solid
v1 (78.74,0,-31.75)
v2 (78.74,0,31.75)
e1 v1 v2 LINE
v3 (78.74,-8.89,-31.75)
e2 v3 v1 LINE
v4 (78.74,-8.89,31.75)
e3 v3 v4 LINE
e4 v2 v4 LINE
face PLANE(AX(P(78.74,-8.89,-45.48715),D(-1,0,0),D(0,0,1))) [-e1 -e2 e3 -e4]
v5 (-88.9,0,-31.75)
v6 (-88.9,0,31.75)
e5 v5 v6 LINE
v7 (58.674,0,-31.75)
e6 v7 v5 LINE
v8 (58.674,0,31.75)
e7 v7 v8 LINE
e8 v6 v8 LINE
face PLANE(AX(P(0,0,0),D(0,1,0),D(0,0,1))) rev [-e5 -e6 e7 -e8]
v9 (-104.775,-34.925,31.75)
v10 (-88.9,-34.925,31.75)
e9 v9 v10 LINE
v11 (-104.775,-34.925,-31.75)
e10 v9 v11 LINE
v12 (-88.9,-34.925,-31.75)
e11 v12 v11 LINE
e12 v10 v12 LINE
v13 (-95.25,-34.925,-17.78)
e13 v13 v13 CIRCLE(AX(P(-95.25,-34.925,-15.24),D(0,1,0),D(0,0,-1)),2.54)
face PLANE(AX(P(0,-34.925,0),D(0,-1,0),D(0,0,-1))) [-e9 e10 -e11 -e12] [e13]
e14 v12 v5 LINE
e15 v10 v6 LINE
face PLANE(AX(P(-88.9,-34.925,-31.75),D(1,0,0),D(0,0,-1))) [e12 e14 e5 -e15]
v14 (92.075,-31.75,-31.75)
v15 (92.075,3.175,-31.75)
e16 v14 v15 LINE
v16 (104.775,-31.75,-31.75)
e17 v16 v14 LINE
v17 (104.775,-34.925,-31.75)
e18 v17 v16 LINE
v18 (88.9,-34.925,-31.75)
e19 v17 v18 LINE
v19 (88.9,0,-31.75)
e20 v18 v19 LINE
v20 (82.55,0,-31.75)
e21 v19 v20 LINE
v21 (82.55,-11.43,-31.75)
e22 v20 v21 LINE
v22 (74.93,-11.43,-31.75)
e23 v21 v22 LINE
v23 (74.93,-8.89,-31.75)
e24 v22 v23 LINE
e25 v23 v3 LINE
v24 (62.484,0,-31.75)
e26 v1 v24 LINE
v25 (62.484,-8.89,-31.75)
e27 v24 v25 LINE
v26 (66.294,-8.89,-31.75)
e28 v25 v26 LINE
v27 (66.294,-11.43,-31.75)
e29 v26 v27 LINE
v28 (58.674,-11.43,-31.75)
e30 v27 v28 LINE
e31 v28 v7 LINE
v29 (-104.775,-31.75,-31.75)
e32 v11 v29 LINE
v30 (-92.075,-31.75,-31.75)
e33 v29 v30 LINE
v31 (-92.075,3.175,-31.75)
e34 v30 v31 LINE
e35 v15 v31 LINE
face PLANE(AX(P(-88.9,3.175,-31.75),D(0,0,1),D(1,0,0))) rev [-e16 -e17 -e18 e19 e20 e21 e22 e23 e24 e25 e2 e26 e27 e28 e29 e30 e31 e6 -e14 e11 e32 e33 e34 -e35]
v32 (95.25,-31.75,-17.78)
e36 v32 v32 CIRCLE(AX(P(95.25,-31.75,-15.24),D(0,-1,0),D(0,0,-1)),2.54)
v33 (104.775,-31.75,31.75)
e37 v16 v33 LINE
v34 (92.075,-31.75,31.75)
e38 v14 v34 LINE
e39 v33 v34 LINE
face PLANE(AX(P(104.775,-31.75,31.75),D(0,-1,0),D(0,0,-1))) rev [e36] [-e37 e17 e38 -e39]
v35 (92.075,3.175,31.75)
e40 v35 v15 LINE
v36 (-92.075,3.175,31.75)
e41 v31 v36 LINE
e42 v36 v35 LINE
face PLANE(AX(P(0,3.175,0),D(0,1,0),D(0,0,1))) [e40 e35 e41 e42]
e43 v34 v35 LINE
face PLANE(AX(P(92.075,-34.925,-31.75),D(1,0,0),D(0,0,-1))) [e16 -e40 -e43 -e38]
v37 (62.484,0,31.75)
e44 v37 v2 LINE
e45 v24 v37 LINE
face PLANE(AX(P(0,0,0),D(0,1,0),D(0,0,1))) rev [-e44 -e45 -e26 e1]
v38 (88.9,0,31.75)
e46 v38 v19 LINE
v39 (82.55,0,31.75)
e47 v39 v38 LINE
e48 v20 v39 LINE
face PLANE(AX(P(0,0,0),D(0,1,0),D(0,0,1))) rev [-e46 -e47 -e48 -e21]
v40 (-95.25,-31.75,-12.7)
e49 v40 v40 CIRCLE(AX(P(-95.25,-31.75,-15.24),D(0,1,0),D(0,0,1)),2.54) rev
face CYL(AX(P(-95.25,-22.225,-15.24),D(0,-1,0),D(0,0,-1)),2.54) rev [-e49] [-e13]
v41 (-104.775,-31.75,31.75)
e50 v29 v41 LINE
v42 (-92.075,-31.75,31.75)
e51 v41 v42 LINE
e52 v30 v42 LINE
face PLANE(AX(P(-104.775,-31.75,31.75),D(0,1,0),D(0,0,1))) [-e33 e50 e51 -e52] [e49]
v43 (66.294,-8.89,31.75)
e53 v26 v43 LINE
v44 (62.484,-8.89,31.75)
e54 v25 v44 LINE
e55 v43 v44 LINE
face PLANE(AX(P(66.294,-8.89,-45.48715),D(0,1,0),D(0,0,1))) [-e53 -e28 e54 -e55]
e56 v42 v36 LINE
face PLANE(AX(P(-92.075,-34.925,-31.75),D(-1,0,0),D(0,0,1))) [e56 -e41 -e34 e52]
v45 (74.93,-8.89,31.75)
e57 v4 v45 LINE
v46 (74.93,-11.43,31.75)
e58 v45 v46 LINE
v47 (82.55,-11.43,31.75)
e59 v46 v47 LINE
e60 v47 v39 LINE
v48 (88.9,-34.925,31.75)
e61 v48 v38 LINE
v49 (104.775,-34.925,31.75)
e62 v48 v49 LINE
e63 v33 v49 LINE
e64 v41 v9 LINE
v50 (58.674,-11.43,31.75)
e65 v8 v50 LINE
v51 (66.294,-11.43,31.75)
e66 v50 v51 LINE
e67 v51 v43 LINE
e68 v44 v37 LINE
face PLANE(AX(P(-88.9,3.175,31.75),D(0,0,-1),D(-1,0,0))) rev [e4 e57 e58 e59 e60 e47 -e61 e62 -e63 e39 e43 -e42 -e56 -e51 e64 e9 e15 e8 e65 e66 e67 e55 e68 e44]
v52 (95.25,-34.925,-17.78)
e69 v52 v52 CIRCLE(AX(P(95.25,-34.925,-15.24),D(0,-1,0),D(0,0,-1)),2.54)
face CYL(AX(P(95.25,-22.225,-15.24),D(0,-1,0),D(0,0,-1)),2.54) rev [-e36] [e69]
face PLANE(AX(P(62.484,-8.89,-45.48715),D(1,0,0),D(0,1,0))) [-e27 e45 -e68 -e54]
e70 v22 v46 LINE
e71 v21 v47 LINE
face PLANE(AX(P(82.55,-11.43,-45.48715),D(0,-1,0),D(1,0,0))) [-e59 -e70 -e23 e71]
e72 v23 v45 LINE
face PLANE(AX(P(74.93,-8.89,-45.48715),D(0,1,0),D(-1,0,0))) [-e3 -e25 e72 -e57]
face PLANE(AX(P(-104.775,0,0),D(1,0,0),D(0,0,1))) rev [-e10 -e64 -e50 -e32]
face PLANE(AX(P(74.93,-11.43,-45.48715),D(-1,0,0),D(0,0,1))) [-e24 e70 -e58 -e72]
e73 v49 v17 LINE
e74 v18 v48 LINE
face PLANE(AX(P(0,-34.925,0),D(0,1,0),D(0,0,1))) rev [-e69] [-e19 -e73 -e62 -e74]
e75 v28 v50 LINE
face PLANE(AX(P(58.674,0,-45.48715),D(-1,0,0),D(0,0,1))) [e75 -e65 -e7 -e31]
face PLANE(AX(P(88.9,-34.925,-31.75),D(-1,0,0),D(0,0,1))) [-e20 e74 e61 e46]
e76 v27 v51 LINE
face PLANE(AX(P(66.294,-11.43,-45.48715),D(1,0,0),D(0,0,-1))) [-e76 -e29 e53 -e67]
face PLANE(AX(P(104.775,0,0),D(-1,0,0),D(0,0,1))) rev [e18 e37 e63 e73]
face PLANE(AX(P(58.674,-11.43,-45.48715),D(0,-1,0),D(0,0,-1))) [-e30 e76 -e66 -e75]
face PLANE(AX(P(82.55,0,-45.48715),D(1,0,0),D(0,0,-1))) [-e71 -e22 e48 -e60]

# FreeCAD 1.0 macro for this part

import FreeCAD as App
import Part
import Sketcher

V = App.Vector
Q = App.Units.Quantity

doc = App.newDocument("Part")
body = doc.addObject("PartDesign::Body", "Body")

# Sketch on XZ plane
sketch1 = body.newObject("Sketcher::SketchObject", "Sketch")
sketch1.AttachmentSupport = (doc.getObject("XZ_Plane"), [""])
sketch1.MapMode = "FlatFace"
sketch1.addGeometry([
    Part.LineSegment(V(-89, -32, 0), V(-89, 32, 0)),
    Part.LineSegment(V(-89, 32, 0), V(89, 32, 0)),
    Part.LineSegment(V(89, 32, 0), V(89, -32, 0)),
    Part.LineSegment(V(89, -32, 0), V(-89, -32, 0)),
], False)
sketch1.addConstraint([
    Sketcher.Constraint("Coincident", 0, 2, 1, 1),
    Sketcher.Constraint("Coincident", 1, 2, 2, 1),
    Sketcher.Constraint("Coincident", 2, 2, 3, 1),
    Sketcher.Constraint("Coincident", 3, 2, 0, 1),
    Sketcher.Constraint("Vertical", 0),
    Sketcher.Constraint("Horizontal", 1),
    Sketcher.Constraint("Vertical", 2),
    Sketcher.Constraint("Horizontal", 3),
    Sketcher.Constraint("Symmetric", 0, 2, 2, 2, -1, 1),
    Sketcher.Constraint("DistanceX", 1, 1, 1, 2, Q("7 in")),
    Sketcher.Constraint("DistanceY", 0, 1, 0, 2, Q("2.5 in")),
])
pad1 = body.newObject("PartDesign::Pad", "Pad")
pad1.Profile = sketch1
pad1.Length = Q("0.125 in")
pad1.Reversed = True

# Sketch on XZ plane
sketch2 = body.newObject("Sketcher::SketchObject", "Sketch001")
sketch2.AttachmentSupport = (doc.getObject("XZ_Plane"), [""])
sketch2.MapMode = "FlatFace"
sketch2.AttachmentOffset = App.Placement(V(0, 0, -0.125 * 25.4), App.Rotation())
sketch2.addGeometry([
    Part.LineSegment(V(-92.1, -31.8, 0), V(-92.1, 31.8, 0)),  # 0
    Part.LineSegment(V(-92.1, 31.8, 0), V(-88.9, 31.8, 0)),  # 1
    Part.LineSegment(V(-88.9, 31.8, 0), V(-88.9, -31.8, 0)),  # 2
    Part.LineSegment(V(-88.9, -31.8, 0), V(-92.1, -31.8, 0)),  # 3
    Part.LineSegment(V(88.9, -31.8, 0), V(88.9, 31.8, 0)),  # 4
    Part.LineSegment(V(88.9, 31.8, 0), V(92.1, 31.8, 0)),  # 5
    Part.LineSegment(V(92.1, 31.8, 0), V(92.1, -31.8, 0)),  # 6
    Part.LineSegment(V(92.1, -31.8, 0), V(88.9, -31.8, 0)),  # 7
], False)
sketch2.addConstraint([
    Sketcher.Constraint("Coincident", 0, 2, 1, 1),
    Sketcher.Constraint("Coincident", 1, 2, 2, 1),
    Sketcher.Constraint("Coincident", 2, 2, 3, 1),
    Sketcher.Constraint("Coincident", 3, 2, 0, 1),
    Sketcher.Constraint("Coincident", 4, 2, 5, 1),
    Sketcher.Constraint("Coincident", 5, 2, 6, 1),
    Sketcher.Constraint("Coincident", 6, 2, 7, 1),
    Sketcher.Constraint("Coincident", 7, 2, 4, 1),
    Sketcher.Constraint("Vertical", 0),
    Sketcher.Constraint("Horizontal", 1),
    Sketcher.Constraint("Vertical", 2),
    Sketcher.Constraint("Horizontal", 3),
    Sketcher.Constraint("Vertical", 4),
    Sketcher.Constraint("Horizontal", 5),
    Sketcher.Constraint("Vertical", 6),
    Sketcher.Constraint("Horizontal", 7),
    Sketcher.Constraint("Symmetric", 2, 2, 4, 2, -1, 1),
    Sketcher.Constraint("Symmetric", 0, 2, 6, 2, -1, 1),
    Sketcher.Constraint("Horizontal", 1, 2, 4, 2),
    Sketcher.Constraint("DistanceY", 0, 1, 0, 2, Q("2.5 in")),
    Sketcher.Constraint("DistanceX", 1, 2, 4, 2, Q("7 in")),
    Sketcher.Constraint("DistanceX", 1, 1, 1, 2, Q("0.125 in")),
])
pad2 = body.newObject("PartDesign::Pad", "Pad001")
pad2.Profile = sketch2
pad2.Length = Q("1.5 in")

# Sketch on YZ plane
sketch3 = body.newObject("Sketcher::SketchObject", "Sketch002")
sketch3.AttachmentSupport = (doc.getObject("YZ_Plane"), [""])
sketch3.MapMode = "FlatFace"
sketch3.AttachmentOffset = App.Placement(V(0, 0, 3.625 * 25.4), App.Rotation())
sketch3.addGeometry([
    Part.LineSegment(V(-31.8, 31.8, 0), V(-34.9, 31.8, 0)),
    Part.LineSegment(V(-34.9, 31.8, 0), V(-34.9, -31.8, 0)),
    Part.LineSegment(V(-34.9, -31.8, 0), V(-31.8, -31.8, 0)),
    Part.LineSegment(V(-31.8, -31.8, 0), V(-31.8, 31.8, 0)),
], False)
sketch3.addConstraint([
    Sketcher.Constraint("Coincident", 0, 2, 1, 1),
    Sketcher.Constraint("Coincident", 1, 2, 2, 1),
    Sketcher.Constraint("Coincident", 2, 2, 3, 1),
    Sketcher.Constraint("Coincident", 3, 2, 0, 1),
    Sketcher.Constraint("Horizontal", 0),
    Sketcher.Constraint("Vertical", 1),
    Sketcher.Constraint("Horizontal", 2),
    Sketcher.Constraint("Vertical", 3),
    Sketcher.Constraint("DistanceY", 1, 2, 1, 1, Q("2.5 in")),
    Sketcher.Constraint("DistanceX", 0, 2, 0, 1, Q("0.125 in")),
    Sketcher.Constraint("DistanceY", -1, 1, 0, 2, Q("1.25 in")),
    Sketcher.Constraint("DistanceX", 2, 2, -1, 1, Q("1.25 in")),
])
pad3 = body.newObject("PartDesign::Pad", "Pad002")
pad3.Profile = sketch3
pad3.Length = Q("0.5 in")

# Sketch on XZ plane
sketch4 = body.newObject("Sketcher::SketchObject", "Sketch003")
sketch4.AttachmentSupport = (doc.getObject("XZ_Plane"), [""])
sketch4.MapMode = "FlatFace"
sketch4.AttachmentOffset = App.Placement(V(0, 0, 1.375 * 25.4), App.Rotation())
sketch4.addGeometry(Part.Circle(V(95.2, -15.2, 0), V(0, 0, 1), 2.5), False)
sketch4.addConstraint([
    Sketcher.Constraint("Diameter", 0, Q("0.2 in")),
    Sketcher.Constraint("DistanceY", 0, 3, -1, 1, Q("0.6 in")),
    Sketcher.Constraint("DistanceX", -1, 1, 0, 3, Q("3.75 in")),
])
pocket1 = body.newObject("PartDesign::Pocket", "Pocket")
pocket1.Profile = sketch4
pocket1.Length = Q("0.5 in")
doc.recompute()

mirrored = body.newObject("PartDesign::Mirrored", "Mirrored")
mirrored.Originals = [pad3, pocket1]
mirrored.MirrorPlane = (doc.getObject("YZ_Plane"), [""])
body.Tip = mirrored

# Sketch on XY plane
sketch5 = body.newObject("Sketcher::SketchObject", "Sketch004")
sketch5.AttachmentSupport = (doc.getObject("XY_Plane"), [""])
sketch5.MapMode = "FlatFace"
sketch5.AttachmentOffset = App.Placement(V(0, 0, 1.25 * 25.4), App.Rotation())
sketch5.addGeometry([
    Part.LineSegment(V(58.7, 0, 0), V(58.7, -11.4, 0)),  # 0
    Part.LineSegment(V(58.7, -11.4, 0), V(66.3, -11.4, 0)),  # 1
    Part.LineSegment(V(66.3, -11.4, 0), V(66.3, -8.9, 0)),  # 2
    Part.LineSegment(V(66.3, -8.9, 0), V(62.5, -8.9, 0)),  # 3
    Part.LineSegment(V(62.5, -8.9, 0), V(62.5, 0, 0)),  # 4
    Part.LineSegment(V(62.5, 0, 0), V(58.7, 0, 0)),  # 5
    Part.LineSegment(V(82.5, -11.4, 0), V(82.5, 0, 0)),  # 6
    Part.LineSegment(V(82.5, 0, 0), V(78.7, 0, 0)),  # 7
    Part.LineSegment(V(78.7, 0, 0), V(78.7, -8.9, 0)),  # 8
    Part.LineSegment(V(78.7, -8.9, 0), V(74.9, -8.9, 0)),  # 9
    Part.LineSegment(V(74.9, -8.9, 0), V(74.9, -11.4, 0)),  # 10
    Part.LineSegment(V(74.9, -11.4, 0), V(82.5, -11.4, 0)),  # 11
], False)
sketch5.addConstraint([
    Sketcher.Constraint("Coincident", 0, 2, 1, 1),
    Sketcher.Constraint("Coincident", 1, 2, 2, 1),
    Sketcher.Constraint("Coincident", 2, 2, 3, 1),
    Sketcher.Constraint("Coincident", 3, 2, 4, 1),
    Sketcher.Constraint("Coincident", 4, 2, 5, 1),
    Sketcher.Constraint("Coincident", 5, 2, 0, 1),
    Sketcher.Constraint("Coincident", 6, 2, 7, 1),
    Sketcher.Constraint("Coincident", 7, 2, 8, 1),
    Sketcher.Constraint("Coincident", 8, 2, 9, 1),
    Sketcher.Constraint("Coincident", 9, 2, 10, 1),
    Sketcher.Constraint("Coincident", 10, 2, 11, 1),
    Sketcher.Constraint("Coincident", 11, 2, 6, 1),
    Sketcher.Constraint("Vertical", 0),
    Sketcher.Constraint("Horizontal", 1),
    Sketcher.Constraint("Vertical", 2),
    Sketcher.Constraint("Horizontal", 3),
    Sketcher.Constraint("Vertical", 4),
    Sketcher.Constraint("Horizontal", 5),
    Sketcher.Constraint("Vertical", 6),
    Sketcher.Constraint("Horizontal", 7),
    Sketcher.Constraint("Vertical", 8),
    Sketcher.Constraint("Horizontal", 9),
    Sketcher.Constraint("Vertical", 10),
    Sketcher.Constraint("Horizontal", 11),
    Sketcher.Constraint("PointOnObject", 4, 2, -1),
    Sketcher.Constraint("PointOnObject", 6, 2, -1),
    Sketcher.Constraint("Horizontal", 3, 2, 8, 2),
    Sketcher.Constraint("Horizontal", 1, 2, 10, 2),
    Sketcher.Constraint("Equal", 3, 5),
    Sketcher.Constraint("Equal", 5, 7),
    Sketcher.Constraint("Equal", 7, 9),
    Sketcher.Constraint("DistanceX", 1, 1, 1, 2, Q("0.3 in")),
    Sketcher.Constraint("DistanceY", 2, 1, 2, 2, Q("0.1 in")),
    Sketcher.Constraint("DistanceY", 0, 2, 0, 1, Q("0.45 in")),
    Sketcher.Constraint("DistanceX", -1, 1, 7, 2, Q("3.1 in")),
    Sketcher.Constraint("DistanceX", -1, 1, 0, 2, Q("2.31 in")),
])
pad4 = body.newObject("PartDesign::Pad", "Pad003")
pad4.Profile = sketch5
pad4.Length = Q("2.5 in")
pad4.Reversed = True

doc.recompute()
